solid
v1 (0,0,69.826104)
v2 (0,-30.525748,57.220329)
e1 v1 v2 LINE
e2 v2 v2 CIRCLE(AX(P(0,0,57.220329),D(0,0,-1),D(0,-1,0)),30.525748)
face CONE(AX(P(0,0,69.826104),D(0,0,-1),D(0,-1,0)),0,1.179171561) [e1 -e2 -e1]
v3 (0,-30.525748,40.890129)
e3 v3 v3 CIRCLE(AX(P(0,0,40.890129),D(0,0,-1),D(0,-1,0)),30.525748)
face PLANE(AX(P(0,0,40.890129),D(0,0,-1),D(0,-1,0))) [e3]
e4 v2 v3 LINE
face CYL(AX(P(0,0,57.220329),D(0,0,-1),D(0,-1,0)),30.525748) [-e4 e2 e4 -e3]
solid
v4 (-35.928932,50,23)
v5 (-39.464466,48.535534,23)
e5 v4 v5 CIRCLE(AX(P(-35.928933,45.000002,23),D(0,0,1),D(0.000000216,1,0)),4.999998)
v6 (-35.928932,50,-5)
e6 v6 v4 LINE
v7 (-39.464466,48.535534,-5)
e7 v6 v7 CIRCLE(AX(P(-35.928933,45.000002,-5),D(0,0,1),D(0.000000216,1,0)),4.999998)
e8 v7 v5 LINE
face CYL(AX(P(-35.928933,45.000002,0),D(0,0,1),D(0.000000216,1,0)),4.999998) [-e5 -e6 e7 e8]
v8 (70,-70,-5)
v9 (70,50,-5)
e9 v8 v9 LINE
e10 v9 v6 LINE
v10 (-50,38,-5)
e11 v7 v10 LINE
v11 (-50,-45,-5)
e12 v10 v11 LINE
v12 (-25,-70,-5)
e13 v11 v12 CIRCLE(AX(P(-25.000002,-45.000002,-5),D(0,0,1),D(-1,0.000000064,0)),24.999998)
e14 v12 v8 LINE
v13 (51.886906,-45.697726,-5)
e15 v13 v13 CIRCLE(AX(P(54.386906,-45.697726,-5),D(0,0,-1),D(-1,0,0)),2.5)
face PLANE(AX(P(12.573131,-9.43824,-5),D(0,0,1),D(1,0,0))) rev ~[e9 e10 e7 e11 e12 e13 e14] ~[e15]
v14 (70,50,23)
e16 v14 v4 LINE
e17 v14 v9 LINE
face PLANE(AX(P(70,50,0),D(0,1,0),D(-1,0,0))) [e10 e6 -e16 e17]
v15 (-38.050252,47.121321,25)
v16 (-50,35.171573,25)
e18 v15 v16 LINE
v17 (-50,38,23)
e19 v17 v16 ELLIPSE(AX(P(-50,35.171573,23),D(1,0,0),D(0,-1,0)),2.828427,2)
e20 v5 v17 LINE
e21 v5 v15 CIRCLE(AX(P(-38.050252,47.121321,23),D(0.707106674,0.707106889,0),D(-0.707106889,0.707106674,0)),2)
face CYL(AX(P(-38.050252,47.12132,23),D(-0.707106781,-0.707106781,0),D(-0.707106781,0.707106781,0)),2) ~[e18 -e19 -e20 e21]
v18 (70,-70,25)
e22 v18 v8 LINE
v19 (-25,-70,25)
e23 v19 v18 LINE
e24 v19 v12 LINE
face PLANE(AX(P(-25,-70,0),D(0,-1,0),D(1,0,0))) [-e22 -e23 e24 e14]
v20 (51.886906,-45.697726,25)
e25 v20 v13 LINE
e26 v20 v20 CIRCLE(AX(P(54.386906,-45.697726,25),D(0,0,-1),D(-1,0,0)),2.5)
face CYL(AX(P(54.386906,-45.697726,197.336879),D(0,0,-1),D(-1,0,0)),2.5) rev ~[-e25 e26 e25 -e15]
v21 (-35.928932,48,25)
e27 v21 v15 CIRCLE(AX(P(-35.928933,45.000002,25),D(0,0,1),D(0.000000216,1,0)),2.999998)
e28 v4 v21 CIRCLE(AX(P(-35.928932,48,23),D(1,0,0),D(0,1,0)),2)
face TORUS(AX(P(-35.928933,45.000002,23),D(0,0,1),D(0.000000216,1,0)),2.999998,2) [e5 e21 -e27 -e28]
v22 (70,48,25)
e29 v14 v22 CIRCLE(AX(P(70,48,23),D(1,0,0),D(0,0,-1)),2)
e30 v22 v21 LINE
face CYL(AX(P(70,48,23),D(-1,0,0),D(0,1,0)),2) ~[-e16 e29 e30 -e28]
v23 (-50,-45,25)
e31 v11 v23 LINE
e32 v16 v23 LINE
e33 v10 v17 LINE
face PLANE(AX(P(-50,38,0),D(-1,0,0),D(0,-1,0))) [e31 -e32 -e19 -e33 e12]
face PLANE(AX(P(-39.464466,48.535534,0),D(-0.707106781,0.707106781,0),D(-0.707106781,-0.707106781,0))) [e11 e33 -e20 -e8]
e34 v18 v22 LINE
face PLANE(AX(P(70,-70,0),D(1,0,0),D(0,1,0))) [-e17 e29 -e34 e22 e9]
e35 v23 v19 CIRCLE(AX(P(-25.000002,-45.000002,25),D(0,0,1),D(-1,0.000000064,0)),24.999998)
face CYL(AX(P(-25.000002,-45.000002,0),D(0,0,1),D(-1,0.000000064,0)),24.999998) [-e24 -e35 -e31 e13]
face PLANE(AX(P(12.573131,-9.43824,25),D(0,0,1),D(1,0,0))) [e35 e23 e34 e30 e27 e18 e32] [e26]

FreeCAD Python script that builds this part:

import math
import FreeCAD as App
import Part
import Sketcher
Q = App.Units.Quantity


def edges_at(feature, points):
    """Names of the edges that pass closest to the given points."""
    edges = feature.Shape.Edges
    near = lambda p: min(range(len(edges)), key=lambda i: edges[i].distToShape(Part.Vertex(*p))[0])
    return sorted({f"Edge{near(p) + 1}" for p in points})

doc = App.newDocument("Part")
body = doc.addObject("PartDesign::Body", "Body")

# Sketch on XY plane
sketch1 = doc.addObject("Sketcher::SketchObject", "Sketch")
body.addObject(sketch1)
sketch1.AttachmentSupport = (doc.XY_Plane, [""])
sketch1.MapMode = "FlatFace"
sketch1.addGeometry([
    Part.LineSegment(App.Vector(70, 50, 0), App.Vector(-35.928932, 50, 0)),  # 0
    Part.ArcOfCircle(Part.Circle(App.Vector(-35.928933, 45.000002, 0), App.Vector(0, 0, 1), 4.999998), math.radians(89.999988), math.radians(135.000009)),  # 1
    Part.LineSegment(App.Vector(-39.464466, 48.535534, 0), App.Vector(-50, 38, 0)),  # 2
    Part.LineSegment(App.Vector(-50, 38, 0), App.Vector(-50, -45, 0)),  # 3
    Part.ArcOfCircle(Part.Circle(App.Vector(-25.000002, -45.000002, 0), App.Vector(0, 0, 1), 24.999998), math.radians(179.999996), math.radians(270.000004)),  # 4
    Part.LineSegment(App.Vector(-25, -70, 0), App.Vector(70, -70, 0)),  # 5
    Part.LineSegment(App.Vector(70, -70, 0), App.Vector(70, 50, 0)),  # 6
], False)
sketch1.addConstraint([
    Sketcher.Constraint("Tangent", 0, 2, 1, 1),
    Sketcher.Constraint("Tangent", 1, 2, 2, 1),
    Sketcher.Constraint("Coincident", 2, 2, 3, 1),
    Sketcher.Constraint("Tangent", 3, 2, 4, 1),
    Sketcher.Constraint("Tangent", 4, 2, 5, 1),
    Sketcher.Constraint("Coincident", 5, 2, 6, 1),
    Sketcher.Constraint("Coincident", 6, 2, 0, 1),
    Sketcher.Constraint("Horizontal", 0),
    Sketcher.Constraint("Vertical", 3),
    Sketcher.Constraint("Horizontal", 5),
    Sketcher.Constraint("Vertical", 6),
    Sketcher.Constraint("Radius", 4, 24.999998),
    Sketcher.Constraint("DistanceX", 5, 1, 5, 2, 95.0),
    Sketcher.Constraint("DistanceY", 3, 2, 3, 1, 83.0),
    Sketcher.Constraint("DistanceY", 6, 1, 6, 2, 120.0),
    Sketcher.Constraint("Angle", 2, Q("-135 deg")),
    Sketcher.Constraint("DistanceX", 4, 3, -1, 1, 25.000002),
    Sketcher.Constraint("DistanceY", 4, 3, -1, 1, 45.000002),
    Sketcher.Constraint("Radius", 1, 4.999998),
])
pad1 = doc.addObject("PartDesign::Pad", "Pad")
body.addObject(pad1)
pad1.Profile = sketch1
pad1.Length = 25

# Sketch on XY plane
sketch2 = doc.addObject("Sketcher::SketchObject", "Sketch001")
body.addObject(sketch2)
sketch2.AttachmentSupport = (doc.XY_Plane, [""])
sketch2.MapMode = "FlatFace"
sketch2.addGeometry([
    Part.LineSegment(App.Vector(70, 50, 0), App.Vector(-35.928932, 50, 0)),  # 0
    Part.ArcOfCircle(Part.Circle(App.Vector(-35.928933, 45.000002, 0), App.Vector(0, 0, 1), 4.999998), math.radians(89.999988), math.radians(135.000009)),  # 1
    Part.LineSegment(App.Vector(-39.464466, 48.535534, 0), App.Vector(-50, 38, 0)),  # 2
    Part.LineSegment(App.Vector(-50, 38, 0), App.Vector(-50, -45, 0)),  # 3
    Part.ArcOfCircle(Part.Circle(App.Vector(-25.000002, -45.000002, 0), App.Vector(0, 0, 1), 24.999998), math.radians(179.999996), math.radians(270.000004)),  # 4
    Part.LineSegment(App.Vector(-25, -70, 0), App.Vector(70, -70, 0)),  # 5
    Part.LineSegment(App.Vector(70, -70, 0), App.Vector(70, 50, 0)),  # 6
], False)
sketch2.addConstraint([
    Sketcher.Constraint("Tangent", 0, 2, 1, 1),
    Sketcher.Constraint("Tangent", 1, 2, 2, 1),
    Sketcher.Constraint("Coincident", 2, 2, 3, 1),
    Sketcher.Constraint("Tangent", 3, 2, 4, 1),
    Sketcher.Constraint("Tangent", 4, 2, 5, 1),
    Sketcher.Constraint("Coincident", 5, 2, 6, 1),
    Sketcher.Constraint("Coincident", 6, 2, 0, 1),
    Sketcher.Constraint("Horizontal", 0),
    Sketcher.Constraint("Vertical", 3),
    Sketcher.Constraint("Horizontal", 5),
    Sketcher.Constraint("Vertical", 6),
    Sketcher.Constraint("Radius", 4, 24.999998),
    Sketcher.Constraint("DistanceX", 5, 1, 5, 2, 95.0),
    Sketcher.Constraint("DistanceY", 3, 2, 3, 1, 83.0),
    Sketcher.Constraint("DistanceY", 6, 1, 6, 2, 120.0),
    Sketcher.Constraint("Angle", 2, Q("-135 deg")),
    Sketcher.Constraint("DistanceX", 4, 3, -1, 1, 25.000002),
    Sketcher.Constraint("DistanceY", 4, 3, -1, 1, 45.000002),
    Sketcher.Constraint("Radius", 1, 4.999998),
])
pad2 = doc.addObject("PartDesign::Pad", "Pad001")
body.addObject(pad2)
pad2.Profile = sketch2
pad2.Length = 5
pad2.Reversed = True
doc.recompute()

fillet = doc.addObject("PartDesign::Fillet", "Fillet")
body.addObject(fillet)
fillet.Base = (pad2, edges_at(pad2, [(17.036, 50, 25)]))
fillet.Radius = 2

# Sketch on XY plane
sketch3 = doc.addObject("Sketcher::SketchObject", "Sketch002")
body.addObject(sketch3)
sketch3.AttachmentSupport = (doc.XY_Plane, [""])
sketch3.MapMode = "FlatFace"
sketch3.AttachmentOffset = App.Placement(App.Vector(0, 0, 25), App.Rotation())
sketch3.addGeometry(Part.Circle(App.Vector(54.386906, -45.697726, 0), App.Vector(0, 0, 1), 2.5), False)
sketch3.addConstraint([
    Sketcher.Constraint("Diameter", 0, 5.0),
    Sketcher.Constraint("DistanceX", -1, 1, 0, 3, 54.386906),
    Sketcher.Constraint("DistanceY", 0, 3, -1, 1, 45.697726),
])
doc.recompute()
hole = doc.addObject("PartDesign::Hole", "Hole")
body.addObject(hole)
hole.Profile = sketch3
hole.ThreadType = "None"
hole.Diameter = 5
hole.DepthType = "ThroughAll"
body2 = doc.addObject("PartDesign::Body", "Body001")

# Sketch on YZ plane
sketch4 = doc.addObject("Sketcher::SketchObject", "Sketch003")
body2.addObject(sketch4)
sketch4.AttachmentSupport = (doc.getObject("YZ_Plane001"), [""])
sketch4.MapMode = "FlatFace"
sketch4.addGeometry([
    Part.LineSegment(App.Vector(-30.525748, 40.890129, 0), App.Vector(0, 40.890129, 0)),
    Part.LineSegment(App.Vector(0, 40.890129, 0), App.Vector(0, 69.826104, 0)),
    Part.LineSegment(App.Vector(0, 69.826104, 0), App.Vector(-30.525748, 57.220329, 0)),
    Part.LineSegment(App.Vector(-30.525748, 57.220329, 0), App.Vector(-30.525748, 40.890129, 0)),
], False)
sketch4.addConstraint([
    Sketcher.Constraint("Coincident", 0, 2, 1, 1),
    Sketcher.Constraint("Coincident", 1, 2, 2, 1),
    Sketcher.Constraint("Coincident", 2, 2, 3, 1),
    Sketcher.Constraint("Coincident", 3, 2, 0, 1),
    Sketcher.Constraint("Horizontal", 0),
    Sketcher.Constraint("Vertical", 1),
    Sketcher.Constraint("Vertical", 3),
    Sketcher.Constraint("PointOnObject", 0, 2, -2),
    Sketcher.Constraint("DistanceY", 3, 2, 3, 1, 16.3302),
    Sketcher.Constraint("DistanceX", 0, 1, 0, 2, 30.525748),
    Sketcher.Constraint("DistanceY", 1, 1, 1, 2, 28.935975),
    Sketcher.Constraint("DistanceY", -1, 1, 0, 2, 40.890129),
])
revolution = doc.addObject("PartDesign::Revolution", "Revolution")
body2.addObject(revolution)
revolution.Profile = sketch4
revolution.ReferenceAxis = (sketch4, ["V_Axis"])
revolution.Angle = 360

doc.recompute()
